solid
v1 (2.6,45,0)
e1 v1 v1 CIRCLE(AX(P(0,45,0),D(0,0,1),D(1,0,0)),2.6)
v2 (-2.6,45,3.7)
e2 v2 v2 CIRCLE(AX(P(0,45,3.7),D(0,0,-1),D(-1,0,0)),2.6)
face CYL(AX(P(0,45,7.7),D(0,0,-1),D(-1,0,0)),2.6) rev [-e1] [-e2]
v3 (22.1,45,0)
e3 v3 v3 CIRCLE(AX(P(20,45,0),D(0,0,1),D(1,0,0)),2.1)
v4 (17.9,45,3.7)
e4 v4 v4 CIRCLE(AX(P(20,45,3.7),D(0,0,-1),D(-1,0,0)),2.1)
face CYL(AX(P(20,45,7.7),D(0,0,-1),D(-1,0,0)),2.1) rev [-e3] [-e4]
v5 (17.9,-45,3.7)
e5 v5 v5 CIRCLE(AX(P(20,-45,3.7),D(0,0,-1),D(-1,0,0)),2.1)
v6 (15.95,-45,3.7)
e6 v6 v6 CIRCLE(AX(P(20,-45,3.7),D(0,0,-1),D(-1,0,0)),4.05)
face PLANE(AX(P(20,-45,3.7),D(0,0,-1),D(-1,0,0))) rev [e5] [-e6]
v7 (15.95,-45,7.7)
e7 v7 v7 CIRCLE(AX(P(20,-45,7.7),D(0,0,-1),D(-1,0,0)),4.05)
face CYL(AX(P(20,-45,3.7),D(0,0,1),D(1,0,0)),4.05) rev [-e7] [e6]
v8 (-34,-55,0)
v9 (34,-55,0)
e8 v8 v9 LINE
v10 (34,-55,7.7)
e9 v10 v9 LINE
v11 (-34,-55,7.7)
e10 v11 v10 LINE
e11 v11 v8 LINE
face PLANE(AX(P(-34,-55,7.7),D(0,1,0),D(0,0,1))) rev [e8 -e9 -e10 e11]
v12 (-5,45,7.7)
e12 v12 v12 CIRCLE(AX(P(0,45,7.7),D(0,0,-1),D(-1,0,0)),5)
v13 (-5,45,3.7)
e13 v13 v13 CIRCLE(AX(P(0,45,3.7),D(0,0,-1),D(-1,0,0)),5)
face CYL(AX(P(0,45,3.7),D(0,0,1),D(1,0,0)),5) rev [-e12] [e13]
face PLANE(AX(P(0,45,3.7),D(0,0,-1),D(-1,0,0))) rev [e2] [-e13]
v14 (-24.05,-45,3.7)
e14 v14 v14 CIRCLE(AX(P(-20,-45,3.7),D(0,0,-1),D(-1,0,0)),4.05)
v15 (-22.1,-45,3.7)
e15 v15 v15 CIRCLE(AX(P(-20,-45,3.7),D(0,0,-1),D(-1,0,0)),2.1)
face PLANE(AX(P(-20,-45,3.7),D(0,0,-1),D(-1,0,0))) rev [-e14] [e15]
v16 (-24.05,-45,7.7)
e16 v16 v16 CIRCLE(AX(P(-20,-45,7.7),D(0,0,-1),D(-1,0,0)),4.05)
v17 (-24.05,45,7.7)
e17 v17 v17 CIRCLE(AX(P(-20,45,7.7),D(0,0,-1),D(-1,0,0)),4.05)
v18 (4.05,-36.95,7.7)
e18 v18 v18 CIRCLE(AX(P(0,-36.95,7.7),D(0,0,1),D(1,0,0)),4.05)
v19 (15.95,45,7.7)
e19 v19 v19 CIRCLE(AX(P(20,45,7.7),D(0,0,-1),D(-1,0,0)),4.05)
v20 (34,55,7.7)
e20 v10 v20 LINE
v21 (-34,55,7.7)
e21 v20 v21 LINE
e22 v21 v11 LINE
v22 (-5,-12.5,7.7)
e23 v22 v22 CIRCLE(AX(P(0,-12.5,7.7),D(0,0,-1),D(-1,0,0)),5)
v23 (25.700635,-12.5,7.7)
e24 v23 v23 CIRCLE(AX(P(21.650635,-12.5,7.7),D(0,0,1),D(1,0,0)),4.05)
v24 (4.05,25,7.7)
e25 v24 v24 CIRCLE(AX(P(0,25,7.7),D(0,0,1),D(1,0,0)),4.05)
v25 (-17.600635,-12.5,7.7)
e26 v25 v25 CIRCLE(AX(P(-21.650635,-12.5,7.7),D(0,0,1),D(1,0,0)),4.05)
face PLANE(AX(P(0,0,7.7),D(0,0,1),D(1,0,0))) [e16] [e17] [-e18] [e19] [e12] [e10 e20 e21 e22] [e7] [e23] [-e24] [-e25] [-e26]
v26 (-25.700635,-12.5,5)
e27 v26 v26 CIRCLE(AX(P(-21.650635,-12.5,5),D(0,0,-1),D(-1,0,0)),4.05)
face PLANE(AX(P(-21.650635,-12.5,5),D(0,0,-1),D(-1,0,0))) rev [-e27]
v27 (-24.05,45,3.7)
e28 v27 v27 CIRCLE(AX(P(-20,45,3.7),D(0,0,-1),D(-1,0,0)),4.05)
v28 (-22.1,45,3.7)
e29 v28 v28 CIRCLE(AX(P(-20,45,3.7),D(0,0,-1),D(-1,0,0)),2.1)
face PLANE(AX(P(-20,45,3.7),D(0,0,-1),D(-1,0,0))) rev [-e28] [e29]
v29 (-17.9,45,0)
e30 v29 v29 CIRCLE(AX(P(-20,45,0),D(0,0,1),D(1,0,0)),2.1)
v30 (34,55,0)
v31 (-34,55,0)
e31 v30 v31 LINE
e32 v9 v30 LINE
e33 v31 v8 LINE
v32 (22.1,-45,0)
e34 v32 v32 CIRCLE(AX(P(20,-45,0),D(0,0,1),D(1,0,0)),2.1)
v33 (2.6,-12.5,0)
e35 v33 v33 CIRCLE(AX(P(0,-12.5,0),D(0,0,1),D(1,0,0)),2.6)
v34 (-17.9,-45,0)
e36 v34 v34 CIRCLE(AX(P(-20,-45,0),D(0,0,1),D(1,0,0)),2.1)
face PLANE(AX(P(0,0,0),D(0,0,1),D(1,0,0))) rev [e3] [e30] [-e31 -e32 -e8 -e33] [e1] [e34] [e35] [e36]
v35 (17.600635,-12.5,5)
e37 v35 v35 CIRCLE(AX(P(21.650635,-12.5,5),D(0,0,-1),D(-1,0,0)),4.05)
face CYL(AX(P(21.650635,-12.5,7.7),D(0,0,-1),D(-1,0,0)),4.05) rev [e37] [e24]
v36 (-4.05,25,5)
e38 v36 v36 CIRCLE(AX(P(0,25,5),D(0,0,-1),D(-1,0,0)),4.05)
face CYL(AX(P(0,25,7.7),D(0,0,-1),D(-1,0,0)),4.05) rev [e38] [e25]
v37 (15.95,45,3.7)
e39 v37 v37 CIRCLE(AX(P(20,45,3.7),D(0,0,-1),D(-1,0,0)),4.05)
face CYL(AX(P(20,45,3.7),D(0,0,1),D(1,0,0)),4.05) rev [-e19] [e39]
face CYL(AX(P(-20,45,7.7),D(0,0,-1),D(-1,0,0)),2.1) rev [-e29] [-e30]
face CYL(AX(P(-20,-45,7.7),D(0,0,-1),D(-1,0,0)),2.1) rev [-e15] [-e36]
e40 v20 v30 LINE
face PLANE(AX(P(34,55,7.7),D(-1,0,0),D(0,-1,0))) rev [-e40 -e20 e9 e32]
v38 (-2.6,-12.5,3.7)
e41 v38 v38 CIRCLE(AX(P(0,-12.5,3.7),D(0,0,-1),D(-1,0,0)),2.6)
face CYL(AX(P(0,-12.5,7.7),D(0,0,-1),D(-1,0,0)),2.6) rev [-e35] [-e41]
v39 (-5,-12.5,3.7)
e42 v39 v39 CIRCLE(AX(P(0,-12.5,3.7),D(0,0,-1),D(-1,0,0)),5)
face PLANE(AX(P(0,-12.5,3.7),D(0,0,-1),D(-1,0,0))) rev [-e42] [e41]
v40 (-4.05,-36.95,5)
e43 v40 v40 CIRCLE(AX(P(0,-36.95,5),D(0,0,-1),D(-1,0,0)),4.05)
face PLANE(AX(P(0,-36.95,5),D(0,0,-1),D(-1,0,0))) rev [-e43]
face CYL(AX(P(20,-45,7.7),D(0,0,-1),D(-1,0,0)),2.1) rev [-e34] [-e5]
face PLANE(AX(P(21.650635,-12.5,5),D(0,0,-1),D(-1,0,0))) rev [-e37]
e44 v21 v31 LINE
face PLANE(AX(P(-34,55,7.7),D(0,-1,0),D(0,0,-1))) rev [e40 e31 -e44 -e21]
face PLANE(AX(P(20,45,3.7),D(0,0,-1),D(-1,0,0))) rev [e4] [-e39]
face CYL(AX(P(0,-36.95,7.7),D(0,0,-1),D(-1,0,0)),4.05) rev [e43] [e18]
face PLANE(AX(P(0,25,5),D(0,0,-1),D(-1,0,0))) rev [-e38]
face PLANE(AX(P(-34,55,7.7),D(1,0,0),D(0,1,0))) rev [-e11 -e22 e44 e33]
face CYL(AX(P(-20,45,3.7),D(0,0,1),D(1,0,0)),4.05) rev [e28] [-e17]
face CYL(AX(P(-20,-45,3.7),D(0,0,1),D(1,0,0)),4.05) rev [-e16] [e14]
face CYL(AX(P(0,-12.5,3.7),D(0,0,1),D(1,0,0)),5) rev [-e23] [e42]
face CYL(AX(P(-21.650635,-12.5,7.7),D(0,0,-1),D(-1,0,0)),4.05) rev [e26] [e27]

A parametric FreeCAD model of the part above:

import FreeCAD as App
import Part
import Sketcher
from FreeCAD import Vector
Q = App.Units.Quantity

doc = App.newDocument("Part")
params = doc.addObject("Spreadsheet::Sheet", "Params")
for row, (alias, value) in enumerate([
    ("sketch1_diameter", "4.2 mm"),
    ("sketch1_diameter2", "8.1 mm"),
    ("sketch1_diameter3", "5.2 mm"),
    ("sketch1_width", "68 mm"),
    ("sketch1_height", "110 mm"),
    ("pad1_length", "7.7 mm"),
    ("pad2_length", "5 mm"),
    ("sketch3_diameter", "10 mm"),
    ("sketch3_diameter2", "8.1 mm"),
    ("pocket1_length", "4 mm"),
], start=1):
    params.set(f"A{row}", alias)
    params.set(f"B{row}", "=" + value)
    params.setAlias(f"B{row}", alias)

body = doc.addObject("PartDesign::Body", "Body")

# Sketch on XY plane
sketch1 = body.newObject("Sketcher::SketchObject", "Sketch")
sketch1.AttachmentSupport = (doc.getObject("XY_Plane"), [""])
sketch1.MapMode = "FlatFace"
sketch1.addGeometry([
    Part.LineSegment(Vector(-34, 55, 0), Vector(-34, -55, 0)),  # 0
    Part.LineSegment(Vector(-34, -55, 0), Vector(34, -55, 0)),  # 1
    Part.LineSegment(Vector(34, -55, 0), Vector(34, 55, 0)),  # 2
    Part.LineSegment(Vector(34, 55, 0), Vector(-34, 55, 0)),  # 3
    Part.Circle(Vector(-20, -45, 0), Vector(0, 0, 1), 2.1),  # 4
    Part.Circle(Vector(-21.650635, -12.5, 0), Vector(0, 0, 1), 4.05),  # 5
    Part.Circle(Vector(0, -36.95, 0), Vector(0, 0, 1), 4.05),  # 6
    Part.Circle(Vector(20, -45, 0), Vector(0, 0, 1), 2.1),  # 7
    Part.Circle(Vector(0, -12.5, 0), Vector(0, 0, 1), 2.6),  # 8
    Part.Circle(Vector(21.650635, -12.5, 0), Vector(0, 0, 1), 4.05),  # 9
    Part.Circle(Vector(-20, 45, 0), Vector(0, 0, 1), 2.1),  # 10
    Part.Circle(Vector(0, 25, 0), Vector(0, 0, 1), 4.05),  # 11
    Part.Circle(Vector(0, 45, 0), Vector(0, 0, 1), 2.6),  # 12
    Part.Circle(Vector(20, 45, 0), Vector(0, 0, 1), 2.1),  # 13
], False)
sketch1.addConstraint([
    Sketcher.Constraint("Coincident", 0, 2, 1, 1),
    Sketcher.Constraint("Coincident", 1, 2, 2, 1),
    Sketcher.Constraint("Coincident", 2, 2, 3, 1),
    Sketcher.Constraint("Coincident", 3, 2, 0, 1),
    Sketcher.Constraint("Vertical", 0),
    Sketcher.Constraint("Horizontal", 1),
    Sketcher.Constraint("Vertical", 2),
    Sketcher.Constraint("Horizontal", 3),
    Sketcher.Constraint("Equal", 5, 6),
    Sketcher.Constraint("Equal", 4, 7),
    Sketcher.Constraint("Equal", 6, 9),
    Sketcher.Constraint("Equal", 7, 10),
    Sketcher.Constraint("Equal", 9, 11),
    Sketcher.Constraint("Equal", 8, 12),
    Sketcher.Constraint("Equal", 10, 13),
    Sketcher.Constraint("Symmetric", 7, 3, 10, 3, -1, 1),
    Sketcher.Constraint("Symmetric", 4, 3, 13, 3, -1, 1),
    Sketcher.Constraint("Symmetric", 0, 2, 2, 2, -1, 1),
    Sketcher.Constraint("Symmetric", 4, 3, 7, 3, -2),
    Sketcher.Constraint("Symmetric", 5, 3, 9, 3, -2),
    Sketcher.Constraint("PointOnObject", 6, 3, -2),
    Sketcher.Constraint("PointOnObject", 8, 3, -2),
    Sketcher.Constraint("PointOnObject", 11, 3, -2),
    Sketcher.Constraint("PointOnObject", 12, 3, -2),
    Sketcher.Constraint("Horizontal", 5, 3, 8, 3),
    Sketcher.Constraint("Horizontal", 10, 3, 12, 3),
    Sketcher.Constraint("Diameter", 4, Q("4.2 mm")),
    Sketcher.Constraint("Diameter", 5, Q("8.1 mm")),
    Sketcher.Constraint("Diameter", 8, Q("5.2 mm")),
    Sketcher.Constraint("DistanceX", 1, 1, 1, 2, Q("68 mm")),
    Sketcher.Constraint("DistanceY", 0, 2, 0, 1, Q("110 mm")),
    Sketcher.Constraint("DistanceX", 4, 3, -1, 1, Q("20 mm")),
    Sketcher.Constraint("DistanceY", 4, 3, -1, 1, Q("45 mm")),
    Sketcher.Constraint("DistanceY", -1, 1, 11, 3, Q("25 mm")),
    Sketcher.Constraint("DistanceY", 5, 3, -1, 1, Q("12.5 mm")),
    Sketcher.Constraint("DistanceY", 6, 3, -1, 1, Q("36.95 mm")),
    Sketcher.Constraint("DistanceX", 5, 3, 9, 3, Q("43.30127 mm")),
])
sketch1.setExpression("Constraints[26]", "Params.sketch1_diameter")
sketch1.setExpression("Constraints[27]", "Params.sketch1_diameter2")
sketch1.setExpression("Constraints[28]", "Params.sketch1_diameter3")
sketch1.setExpression("Constraints[29]", "Params.sketch1_width")
sketch1.setExpression("Constraints[30]", "Params.sketch1_height")
pad1 = body.newObject("PartDesign::Pad", "Pad")
pad1.Profile = sketch1
pad1.setExpression("Length", "Params.pad1_length")

# Sketch on XY plane
sketch2 = body.newObject("Sketcher::SketchObject", "Sketch001")
sketch2.AttachmentSupport = (doc.getObject("XY_Plane"), [""])
sketch2.MapMode = "FlatFace"
sketch2.addGeometry([
    Part.Circle(Vector(21.650635, -12.5, 0), Vector(0, 0, 1), 6.304633),
    Part.Circle(Vector(0, 25, 0), Vector(0, 0, 1), 7.334333),
    Part.Circle(Vector(-21.650635, -12.5, 0), Vector(0, 0, 1), 8.114041),
    Part.Circle(Vector(0, -36.95, 0), Vector(0, 0, 1), 11.073656),
], False)
sketch2.addConstraint([
    Sketcher.Constraint("Symmetric", 0, 3, 2, 3, -2),
    Sketcher.Constraint("PointOnObject", 1, 3, -2),
    Sketcher.Constraint("PointOnObject", 3, 3, -2),
    Sketcher.Constraint("DistanceY", -1, 1, 1, 3, Q("25 mm")),
    Sketcher.Constraint("DistanceY", 0, 3, -1, 1, Q("12.5 mm")),
    Sketcher.Constraint("Diameter", 2, Q("16.228082 mm")),
    Sketcher.Constraint("DistanceY", 3, 3, -1, 1, Q("36.95 mm")),
    Sketcher.Constraint("Diameter", 0, Q("12.609266 mm")),
    Sketcher.Constraint("Diameter", 1, Q("14.668667 mm")),
    Sketcher.Constraint("Diameter", 3, Q("22.147313 mm")),
    Sketcher.Constraint("DistanceX", 2, 3, 0, 3, Q("43.30127 mm")),
])
pad2 = body.newObject("PartDesign::Pad", "Pad001")
pad2.Profile = sketch2
pad2.setExpression("Length", "Params.pad2_length")

# Sketch on XY plane
sketch3 = body.newObject("Sketcher::SketchObject", "Sketch002")
sketch3.AttachmentSupport = (doc.getObject("XY_Plane"), [""])
sketch3.MapMode = "FlatFace"
sketch3.AttachmentOffset = App.Placement(Vector(0, 0, 7.7), App.Rotation())
sketch3.addGeometry([
    Part.Circle(Vector(20, 45, 0), Vector(0, 0, 1), 4.05),  # 0
    Part.Circle(Vector(-20, 45, 0), Vector(0, 0, 1), 4.05),  # 1
    Part.Circle(Vector(20, -45, 0), Vector(0, 0, 1), 4.05),  # 2
    Part.Circle(Vector(-20, -45, 0), Vector(0, 0, 1), 4.05),  # 3
    Part.Circle(Vector(0, 45, 0), Vector(0, 0, 1), 5),  # 4
    Part.Circle(Vector(0, -12.5, 0), Vector(0, 0, 1), 5),  # 5
], False)
sketch3.addConstraint([
    Sketcher.Constraint("Equal", 0, 1),
    Sketcher.Constraint("Equal", 1, 2),
    Sketcher.Constraint("Equal", 2, 3),
    Sketcher.Constraint("Equal", 4, 5),
    Sketcher.Constraint("Symmetric", 1, 3, 2, 3, -1, 1),
    Sketcher.Constraint("Symmetric", 0, 3, 3, 3, -1, 1),
    Sketcher.Constraint("Symmetric", 0, 3, 1, 3, -2),
    Sketcher.Constraint("PointOnObject", 4, 3, -2),
    Sketcher.Constraint("PointOnObject", 5, 3, -2),
    Sketcher.Constraint("Horizontal", 1, 3, 4, 3),
    Sketcher.Constraint("Diameter", 4, Q("10 mm")),
    Sketcher.Constraint("Diameter", 0, Q("8.1 mm")),
    Sketcher.Constraint("DistanceX", -1, 1, 0, 3, Q("20 mm")),
    Sketcher.Constraint("DistanceY", -1, 1, 0, 3, Q("45 mm")),
    Sketcher.Constraint("DistanceY", 5, 3, -1, 1, Q("12.5 mm")),
])
sketch3.setExpression("Constraints[10]", "Params.sketch3_diameter")
sketch3.setExpression("Constraints[11]", "Params.sketch3_diameter2")
pocket1 = body.newObject("PartDesign::Pocket", "Pocket")
pocket1.Profile = sketch3
pocket1.setExpression("Length", "Params.pocket1_length")

doc.recompute()
